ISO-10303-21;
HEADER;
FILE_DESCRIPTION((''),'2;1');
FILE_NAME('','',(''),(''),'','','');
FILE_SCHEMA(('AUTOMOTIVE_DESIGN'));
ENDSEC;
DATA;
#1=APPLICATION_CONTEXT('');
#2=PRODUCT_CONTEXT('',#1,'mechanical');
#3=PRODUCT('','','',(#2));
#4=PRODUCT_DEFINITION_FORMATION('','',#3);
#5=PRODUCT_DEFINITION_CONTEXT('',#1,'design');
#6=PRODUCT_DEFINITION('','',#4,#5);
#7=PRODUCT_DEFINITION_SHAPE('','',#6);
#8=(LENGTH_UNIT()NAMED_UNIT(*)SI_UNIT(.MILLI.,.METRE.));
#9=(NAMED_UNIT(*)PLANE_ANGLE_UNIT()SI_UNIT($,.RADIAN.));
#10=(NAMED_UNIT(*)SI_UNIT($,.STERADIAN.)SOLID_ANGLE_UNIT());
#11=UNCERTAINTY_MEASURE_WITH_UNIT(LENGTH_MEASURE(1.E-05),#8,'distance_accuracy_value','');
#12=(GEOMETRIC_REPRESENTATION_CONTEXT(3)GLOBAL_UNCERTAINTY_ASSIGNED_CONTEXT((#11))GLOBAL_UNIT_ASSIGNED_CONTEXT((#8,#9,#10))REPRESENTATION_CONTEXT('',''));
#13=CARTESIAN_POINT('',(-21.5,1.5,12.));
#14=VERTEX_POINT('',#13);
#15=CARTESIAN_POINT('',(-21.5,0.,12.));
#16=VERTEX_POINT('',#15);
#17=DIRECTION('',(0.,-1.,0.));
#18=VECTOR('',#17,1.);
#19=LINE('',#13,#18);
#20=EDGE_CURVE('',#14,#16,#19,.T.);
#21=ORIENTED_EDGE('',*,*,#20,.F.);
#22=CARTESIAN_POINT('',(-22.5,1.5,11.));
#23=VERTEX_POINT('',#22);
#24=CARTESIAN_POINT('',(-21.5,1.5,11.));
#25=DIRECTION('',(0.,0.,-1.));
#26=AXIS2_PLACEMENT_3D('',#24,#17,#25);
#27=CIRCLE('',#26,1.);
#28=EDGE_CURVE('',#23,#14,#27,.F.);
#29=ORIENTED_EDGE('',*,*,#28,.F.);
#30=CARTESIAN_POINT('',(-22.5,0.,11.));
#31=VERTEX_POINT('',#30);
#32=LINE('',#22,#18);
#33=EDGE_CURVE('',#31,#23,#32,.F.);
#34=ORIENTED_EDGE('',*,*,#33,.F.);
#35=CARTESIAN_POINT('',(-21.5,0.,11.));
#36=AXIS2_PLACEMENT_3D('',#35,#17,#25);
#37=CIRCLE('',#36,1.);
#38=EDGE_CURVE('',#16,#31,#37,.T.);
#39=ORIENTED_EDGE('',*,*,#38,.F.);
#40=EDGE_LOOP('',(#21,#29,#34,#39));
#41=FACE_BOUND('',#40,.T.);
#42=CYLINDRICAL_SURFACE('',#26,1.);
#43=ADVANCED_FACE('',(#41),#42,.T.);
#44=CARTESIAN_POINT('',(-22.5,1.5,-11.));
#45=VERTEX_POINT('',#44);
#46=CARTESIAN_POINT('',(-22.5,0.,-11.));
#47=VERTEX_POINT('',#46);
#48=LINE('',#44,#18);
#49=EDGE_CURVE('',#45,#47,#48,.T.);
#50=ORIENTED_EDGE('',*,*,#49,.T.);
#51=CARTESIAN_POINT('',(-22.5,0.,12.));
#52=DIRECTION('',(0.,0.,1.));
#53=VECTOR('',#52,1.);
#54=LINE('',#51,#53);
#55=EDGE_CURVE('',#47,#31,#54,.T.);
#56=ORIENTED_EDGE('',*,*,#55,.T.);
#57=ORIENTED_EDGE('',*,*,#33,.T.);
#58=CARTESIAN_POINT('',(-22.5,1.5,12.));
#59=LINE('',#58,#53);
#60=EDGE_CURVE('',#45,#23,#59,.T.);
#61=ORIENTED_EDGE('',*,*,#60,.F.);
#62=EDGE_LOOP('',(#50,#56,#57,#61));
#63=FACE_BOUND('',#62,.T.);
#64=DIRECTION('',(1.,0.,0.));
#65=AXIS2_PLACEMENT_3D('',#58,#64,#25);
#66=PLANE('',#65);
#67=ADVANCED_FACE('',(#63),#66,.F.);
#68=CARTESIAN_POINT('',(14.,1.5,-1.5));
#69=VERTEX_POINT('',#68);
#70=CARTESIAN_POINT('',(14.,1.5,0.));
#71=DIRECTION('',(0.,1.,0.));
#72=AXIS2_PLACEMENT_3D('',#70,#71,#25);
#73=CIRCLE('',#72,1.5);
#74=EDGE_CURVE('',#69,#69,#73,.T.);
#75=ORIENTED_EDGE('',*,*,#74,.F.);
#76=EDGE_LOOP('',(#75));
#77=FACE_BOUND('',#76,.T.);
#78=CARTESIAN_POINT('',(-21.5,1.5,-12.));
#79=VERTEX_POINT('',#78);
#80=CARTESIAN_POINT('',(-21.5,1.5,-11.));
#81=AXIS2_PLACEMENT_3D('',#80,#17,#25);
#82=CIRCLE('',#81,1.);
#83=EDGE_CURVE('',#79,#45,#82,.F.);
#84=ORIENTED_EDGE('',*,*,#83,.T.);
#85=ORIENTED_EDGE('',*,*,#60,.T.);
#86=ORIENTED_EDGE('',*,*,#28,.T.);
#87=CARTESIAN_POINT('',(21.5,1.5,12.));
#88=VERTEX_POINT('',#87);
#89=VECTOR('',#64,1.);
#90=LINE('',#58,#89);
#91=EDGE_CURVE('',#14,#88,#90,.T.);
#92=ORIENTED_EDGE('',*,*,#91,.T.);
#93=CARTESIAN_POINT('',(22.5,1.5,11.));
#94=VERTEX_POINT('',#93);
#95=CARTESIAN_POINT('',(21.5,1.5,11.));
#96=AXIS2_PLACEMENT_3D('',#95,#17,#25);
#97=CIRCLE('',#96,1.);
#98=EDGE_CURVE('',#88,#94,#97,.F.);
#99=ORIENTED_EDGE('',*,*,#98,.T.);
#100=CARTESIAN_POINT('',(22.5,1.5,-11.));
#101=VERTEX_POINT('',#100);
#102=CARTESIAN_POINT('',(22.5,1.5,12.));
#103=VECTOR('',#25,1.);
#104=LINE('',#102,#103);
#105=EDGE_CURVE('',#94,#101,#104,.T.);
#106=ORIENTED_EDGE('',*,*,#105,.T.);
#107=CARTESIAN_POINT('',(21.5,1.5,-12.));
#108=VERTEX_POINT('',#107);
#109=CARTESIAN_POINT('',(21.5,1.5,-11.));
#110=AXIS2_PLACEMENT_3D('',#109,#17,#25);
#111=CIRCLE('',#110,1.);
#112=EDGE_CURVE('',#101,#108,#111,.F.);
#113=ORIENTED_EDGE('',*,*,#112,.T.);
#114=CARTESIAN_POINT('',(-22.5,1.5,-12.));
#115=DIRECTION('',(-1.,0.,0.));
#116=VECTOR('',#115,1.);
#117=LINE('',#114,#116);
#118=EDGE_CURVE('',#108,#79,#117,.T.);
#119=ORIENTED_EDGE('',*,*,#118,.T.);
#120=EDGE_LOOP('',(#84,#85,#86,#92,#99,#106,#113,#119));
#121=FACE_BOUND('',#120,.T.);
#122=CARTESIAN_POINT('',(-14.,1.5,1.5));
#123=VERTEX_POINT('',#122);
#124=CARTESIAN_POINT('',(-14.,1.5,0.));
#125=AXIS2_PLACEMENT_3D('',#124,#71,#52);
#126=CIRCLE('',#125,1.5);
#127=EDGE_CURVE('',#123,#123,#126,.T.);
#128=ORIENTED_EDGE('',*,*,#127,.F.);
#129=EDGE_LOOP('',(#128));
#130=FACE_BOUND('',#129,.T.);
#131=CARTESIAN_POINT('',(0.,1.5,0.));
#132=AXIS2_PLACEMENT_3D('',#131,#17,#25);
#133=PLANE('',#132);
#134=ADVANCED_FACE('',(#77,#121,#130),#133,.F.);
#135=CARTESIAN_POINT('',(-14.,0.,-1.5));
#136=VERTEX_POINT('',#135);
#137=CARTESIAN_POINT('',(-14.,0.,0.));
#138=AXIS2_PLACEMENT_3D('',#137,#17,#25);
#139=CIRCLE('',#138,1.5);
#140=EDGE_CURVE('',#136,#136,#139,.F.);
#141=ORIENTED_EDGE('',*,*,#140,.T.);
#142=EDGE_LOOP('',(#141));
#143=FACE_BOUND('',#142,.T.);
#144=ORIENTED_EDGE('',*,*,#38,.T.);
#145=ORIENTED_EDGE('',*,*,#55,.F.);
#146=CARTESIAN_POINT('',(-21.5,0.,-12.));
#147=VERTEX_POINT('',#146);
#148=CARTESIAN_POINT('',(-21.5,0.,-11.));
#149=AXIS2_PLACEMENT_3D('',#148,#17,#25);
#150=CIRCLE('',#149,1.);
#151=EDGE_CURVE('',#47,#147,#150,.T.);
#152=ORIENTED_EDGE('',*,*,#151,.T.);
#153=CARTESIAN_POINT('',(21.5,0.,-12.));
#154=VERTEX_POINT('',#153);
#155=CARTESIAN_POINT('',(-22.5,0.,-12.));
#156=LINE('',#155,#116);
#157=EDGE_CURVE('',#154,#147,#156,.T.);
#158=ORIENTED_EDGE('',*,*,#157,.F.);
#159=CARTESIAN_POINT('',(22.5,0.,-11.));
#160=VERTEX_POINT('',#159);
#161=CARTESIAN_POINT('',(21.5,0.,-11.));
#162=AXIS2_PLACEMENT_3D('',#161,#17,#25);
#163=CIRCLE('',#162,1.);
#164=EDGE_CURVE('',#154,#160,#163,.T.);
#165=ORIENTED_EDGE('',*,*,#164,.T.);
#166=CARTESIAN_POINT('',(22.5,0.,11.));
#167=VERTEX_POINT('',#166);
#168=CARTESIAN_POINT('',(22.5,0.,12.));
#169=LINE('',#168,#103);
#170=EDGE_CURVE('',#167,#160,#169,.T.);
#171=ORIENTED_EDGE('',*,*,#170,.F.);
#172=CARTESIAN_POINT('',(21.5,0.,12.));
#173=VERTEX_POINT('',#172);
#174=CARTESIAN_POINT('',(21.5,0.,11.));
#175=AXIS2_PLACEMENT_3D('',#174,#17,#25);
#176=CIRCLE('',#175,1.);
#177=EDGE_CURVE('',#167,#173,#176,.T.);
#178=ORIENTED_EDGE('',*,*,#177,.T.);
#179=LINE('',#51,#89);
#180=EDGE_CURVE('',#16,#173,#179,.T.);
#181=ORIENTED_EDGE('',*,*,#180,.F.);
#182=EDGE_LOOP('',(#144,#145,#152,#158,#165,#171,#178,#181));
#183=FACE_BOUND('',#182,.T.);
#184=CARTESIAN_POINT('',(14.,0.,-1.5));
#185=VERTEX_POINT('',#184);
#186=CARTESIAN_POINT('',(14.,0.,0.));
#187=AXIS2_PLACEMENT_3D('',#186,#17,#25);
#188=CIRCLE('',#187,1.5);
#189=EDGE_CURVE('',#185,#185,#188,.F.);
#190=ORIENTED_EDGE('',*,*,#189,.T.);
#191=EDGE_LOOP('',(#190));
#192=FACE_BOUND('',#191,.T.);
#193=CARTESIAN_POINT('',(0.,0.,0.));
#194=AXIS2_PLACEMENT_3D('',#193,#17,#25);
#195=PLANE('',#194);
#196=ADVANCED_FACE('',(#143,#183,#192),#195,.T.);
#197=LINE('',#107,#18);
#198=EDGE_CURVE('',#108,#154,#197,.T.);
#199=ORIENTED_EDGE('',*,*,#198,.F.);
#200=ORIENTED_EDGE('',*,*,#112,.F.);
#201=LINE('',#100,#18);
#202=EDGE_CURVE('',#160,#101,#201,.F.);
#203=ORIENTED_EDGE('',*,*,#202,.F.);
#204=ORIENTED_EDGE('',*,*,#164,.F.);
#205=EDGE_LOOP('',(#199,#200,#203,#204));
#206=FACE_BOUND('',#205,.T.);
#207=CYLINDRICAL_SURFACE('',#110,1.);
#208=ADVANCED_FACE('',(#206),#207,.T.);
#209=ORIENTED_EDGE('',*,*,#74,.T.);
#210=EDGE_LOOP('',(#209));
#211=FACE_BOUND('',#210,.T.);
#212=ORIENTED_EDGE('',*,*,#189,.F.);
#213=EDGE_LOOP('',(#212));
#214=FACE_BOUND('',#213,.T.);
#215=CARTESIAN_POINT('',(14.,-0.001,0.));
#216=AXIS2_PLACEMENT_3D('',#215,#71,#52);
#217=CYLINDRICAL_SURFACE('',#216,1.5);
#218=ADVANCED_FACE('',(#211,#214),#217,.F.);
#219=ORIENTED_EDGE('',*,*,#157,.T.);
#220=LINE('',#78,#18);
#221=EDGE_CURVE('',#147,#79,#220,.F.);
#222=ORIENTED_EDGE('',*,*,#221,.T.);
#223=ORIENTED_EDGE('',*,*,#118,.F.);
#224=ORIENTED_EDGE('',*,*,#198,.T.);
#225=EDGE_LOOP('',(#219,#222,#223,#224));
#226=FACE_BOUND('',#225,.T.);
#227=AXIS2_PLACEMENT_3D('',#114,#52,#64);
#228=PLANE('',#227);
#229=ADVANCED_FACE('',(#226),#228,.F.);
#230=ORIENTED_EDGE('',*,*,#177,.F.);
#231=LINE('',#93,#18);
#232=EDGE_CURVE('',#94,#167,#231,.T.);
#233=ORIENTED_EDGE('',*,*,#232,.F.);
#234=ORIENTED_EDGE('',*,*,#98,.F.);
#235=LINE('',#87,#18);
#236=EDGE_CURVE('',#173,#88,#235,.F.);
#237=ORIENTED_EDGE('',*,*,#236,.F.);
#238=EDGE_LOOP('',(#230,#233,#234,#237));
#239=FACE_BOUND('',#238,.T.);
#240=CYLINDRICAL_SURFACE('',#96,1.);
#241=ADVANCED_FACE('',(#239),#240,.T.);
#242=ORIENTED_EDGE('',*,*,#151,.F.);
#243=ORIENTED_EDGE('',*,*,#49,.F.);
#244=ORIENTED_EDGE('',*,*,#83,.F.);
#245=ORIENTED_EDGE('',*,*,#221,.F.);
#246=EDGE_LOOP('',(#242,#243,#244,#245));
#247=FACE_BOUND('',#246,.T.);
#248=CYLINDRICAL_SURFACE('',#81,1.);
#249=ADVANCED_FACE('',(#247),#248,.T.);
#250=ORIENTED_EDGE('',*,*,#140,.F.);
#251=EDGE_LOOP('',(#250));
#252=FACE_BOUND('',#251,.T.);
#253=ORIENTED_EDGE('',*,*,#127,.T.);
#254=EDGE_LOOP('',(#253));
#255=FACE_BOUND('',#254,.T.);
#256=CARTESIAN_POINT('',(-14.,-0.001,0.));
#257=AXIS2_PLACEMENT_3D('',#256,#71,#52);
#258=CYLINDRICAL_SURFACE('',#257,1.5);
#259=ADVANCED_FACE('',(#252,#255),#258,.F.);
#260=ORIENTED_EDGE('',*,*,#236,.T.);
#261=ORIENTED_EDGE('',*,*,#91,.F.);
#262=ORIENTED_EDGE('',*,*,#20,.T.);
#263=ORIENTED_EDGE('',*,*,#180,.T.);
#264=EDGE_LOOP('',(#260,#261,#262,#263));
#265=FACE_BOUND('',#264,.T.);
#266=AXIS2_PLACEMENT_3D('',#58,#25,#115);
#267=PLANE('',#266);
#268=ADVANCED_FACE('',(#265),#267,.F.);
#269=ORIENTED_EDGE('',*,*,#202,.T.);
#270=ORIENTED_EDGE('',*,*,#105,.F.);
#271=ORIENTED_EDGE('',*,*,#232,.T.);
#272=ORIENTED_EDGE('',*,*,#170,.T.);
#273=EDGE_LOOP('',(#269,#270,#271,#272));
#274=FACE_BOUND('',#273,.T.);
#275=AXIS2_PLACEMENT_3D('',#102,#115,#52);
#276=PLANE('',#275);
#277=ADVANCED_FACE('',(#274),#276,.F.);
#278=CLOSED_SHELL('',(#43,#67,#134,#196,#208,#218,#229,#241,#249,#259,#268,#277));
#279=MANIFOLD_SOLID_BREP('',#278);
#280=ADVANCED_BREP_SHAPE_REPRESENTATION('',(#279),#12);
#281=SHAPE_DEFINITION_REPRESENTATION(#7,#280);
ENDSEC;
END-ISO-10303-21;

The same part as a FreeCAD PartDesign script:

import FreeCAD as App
import Part
import Sketcher
Q = App.Units.Quantity


def edges_at(feature, points):
    """Names of the edges that pass closest to the given points."""
    edges = feature.Shape.Edges
    near = lambda p: min(range(len(edges)), key=lambda i: edges[i].distToShape(Part.Vertex(*p))[0])
    return sorted({f"Edge{near(p) + 1}" for p in points})


def add_polygon(sketch, points):
    """Adds a closed chain of lines whose ends are joined by coincident constraints."""
    first, n = sketch.GeometryCount, len(points)
    for a, b in zip(points, points[1:] + points[:1]):
        sketch.addGeometry(Part.LineSegment(App.Vector(*a, 0), App.Vector(*b, 0)), False)
    for i in range(n):
        sketch.addConstraint(Sketcher.Constraint("Coincident", first + i, 2, first + (i + 1) % n, 1))

doc = App.newDocument("Part")
params = doc.addObject("Spreadsheet::Sheet", "Params")
for row, (alias, value) in enumerate([
    ("sketch1_width", "45 mm"),
    ("sketch1_height", "24 mm"),
    ("pad1_length", "1.5 mm"),
    ("fillet_radius", "1 mm"),
    ("sketch2_diameter", "3 mm"),
    ("sketch3_diameter", "3 mm"),
], start=1):
    params.set(f"A{row}", alias)
    params.set(f"B{row}", "=" + value)
    params.setAlias(f"B{row}", alias)

body = doc.addObject("PartDesign::Body", "Body")

# Sketch on XZ plane
sketch1 = body.newObject("Sketcher::SketchObject", "Sketch")
sketch1.AttachmentSupport = (doc.getObject("XZ_Plane"), [""])
sketch1.MapMode = "FlatFace"
add_polygon(sketch1, [(-22.5, -12), (-22.5, 12), (22.5, 12), (22.5, -12)])  # lines 0-3
sketch1.addConstraint([
    Sketcher.Constraint("Vertical", 0),
    Sketcher.Constraint("Horizontal", 1),
    Sketcher.Constraint("Vertical", 2),
    Sketcher.Constraint("Horizontal", 3),
    Sketcher.Constraint("Symmetric", 0, 2, 2, 2, -1, 1),
    Sketcher.Constraint("DistanceX", 1, 1, 1, 2, Q("45 mm")),
    Sketcher.Constraint("DistanceY", 0, 1, 0, 2, Q("24 mm")),
])
sketch1.setExpression("Constraints[9]", "Params.sketch1_width")
sketch1.setExpression("Constraints[10]", "Params.sketch1_height")
pad1 = body.newObject("PartDesign::Pad", "Pad")
pad1.Profile = sketch1
pad1.setExpression("Length", "Params.pad1_length")
pad1.Reversed = True
doc.recompute()

fillet = body.newObject("PartDesign::Fillet", "Fillet")
fillet.Base = (pad1, edges_at(pad1, [
    (22.5, 0.75, 12),
    (-22.5, 0.75, 12),
    (-22.5, 0.75, -12),
    (22.5, 0.75, -12),
]))
fillet.setExpression("Radius", "Params.fillet_radius")

# Sketch on XZ plane
sketch2 = body.newObject("Sketcher::SketchObject", "Sketch001")
sketch2.AttachmentSupport = (doc.getObject("XZ_Plane"), [""])
sketch2.MapMode = "FlatFace"
sketch2.AttachmentOffset = App.Placement(App.Vector(0, 0, -1.5), App.Rotation())
sketch2.addGeometry(Part.Circle(App.Vector(-14, 0, 0), App.Vector(0, 0, 1), 1.5), False)
sketch2.addConstraint([
    Sketcher.Constraint("PointOnObject", 0, 3, -1),
    Sketcher.Constraint("Diameter", 0, Q("3 mm")),
    Sketcher.Constraint("DistanceX", 0, 3, -1, 1, Q("14 mm")),
])
sketch2.setExpression("Constraints[1]", "Params.sketch2_diameter")
pocket1 = body.newObject("PartDesign::Pocket", "Pocket")
pocket1.Profile = sketch2
pocket1.Type = "UpToFirst"
pocket1.Reversed = True

# Sketch on XZ plane
sketch3 = body.newObject("Sketcher::SketchObject", "Sketch002")
sketch3.AttachmentSupport = (doc.getObject("XZ_Plane"), [""])
sketch3.MapMode = "FlatFace"
sketch3.AttachmentOffset = App.Placement(App.Vector(0, 0, -1.5), App.Rotation())
sketch3.addGeometry(Part.Circle(App.Vector(14, 0, 0), App.Vector(0, 0, 1), 1.5), False)
sketch3.addConstraint([
    Sketcher.Constraint("PointOnObject", 0, 3, -1),
    Sketcher.Constraint("Diameter", 0, Q("3 mm")),
    Sketcher.Constraint("DistanceX", -1, 1, 0, 3, Q("14 mm")),
])
sketch3.setExpression("Constraints[1]", "Params.sketch3_diameter")
pocket2 = body.newObject("PartDesign::Pocket", "Pocket001")
pocket2.Profile = sketch3
pocket2.Type = "UpToFirst"
pocket2.Reversed = True

doc.recompute()
